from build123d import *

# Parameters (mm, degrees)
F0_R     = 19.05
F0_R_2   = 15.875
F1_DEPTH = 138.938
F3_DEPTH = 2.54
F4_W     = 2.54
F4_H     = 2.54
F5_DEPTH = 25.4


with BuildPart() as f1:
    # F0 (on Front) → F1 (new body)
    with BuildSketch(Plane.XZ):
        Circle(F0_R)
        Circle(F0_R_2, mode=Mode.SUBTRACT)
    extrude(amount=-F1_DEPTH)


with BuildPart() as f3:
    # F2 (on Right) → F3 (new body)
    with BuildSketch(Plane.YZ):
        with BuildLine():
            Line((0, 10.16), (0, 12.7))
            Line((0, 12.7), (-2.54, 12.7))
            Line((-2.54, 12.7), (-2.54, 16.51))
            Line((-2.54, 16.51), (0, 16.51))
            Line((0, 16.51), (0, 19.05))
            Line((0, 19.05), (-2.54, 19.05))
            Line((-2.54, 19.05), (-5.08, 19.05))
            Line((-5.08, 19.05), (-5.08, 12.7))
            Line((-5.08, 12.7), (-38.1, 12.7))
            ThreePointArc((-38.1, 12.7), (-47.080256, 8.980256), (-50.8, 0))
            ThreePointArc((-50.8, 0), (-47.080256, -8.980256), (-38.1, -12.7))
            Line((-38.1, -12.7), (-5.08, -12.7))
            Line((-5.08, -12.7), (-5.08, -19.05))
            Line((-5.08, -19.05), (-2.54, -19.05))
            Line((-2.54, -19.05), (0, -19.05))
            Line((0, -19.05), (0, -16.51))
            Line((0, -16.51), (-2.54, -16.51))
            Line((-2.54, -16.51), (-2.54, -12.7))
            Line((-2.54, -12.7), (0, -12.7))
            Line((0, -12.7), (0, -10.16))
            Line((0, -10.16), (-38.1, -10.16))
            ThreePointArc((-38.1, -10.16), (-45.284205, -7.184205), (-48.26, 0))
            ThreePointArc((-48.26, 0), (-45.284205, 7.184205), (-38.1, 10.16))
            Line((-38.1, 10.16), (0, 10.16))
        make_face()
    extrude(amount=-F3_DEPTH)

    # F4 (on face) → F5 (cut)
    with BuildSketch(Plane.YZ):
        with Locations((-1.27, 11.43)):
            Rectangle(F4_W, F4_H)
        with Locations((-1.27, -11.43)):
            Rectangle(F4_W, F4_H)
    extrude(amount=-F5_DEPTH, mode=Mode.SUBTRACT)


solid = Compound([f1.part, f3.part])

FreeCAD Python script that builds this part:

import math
import FreeCAD as App
import Part
import Sketcher
from FreeCAD import Vector
Q = App.Units.Quantity


def add_polygon(sketch, points):
    """Adds a closed chain of lines whose ends are joined by coincident constraints."""
    first, n = sketch.GeometryCount, len(points)
    for a, b in zip(points, points[1:] + points[:1]):
        sketch.addGeometry(Part.LineSegment(App.Vector(*a, 0), App.Vector(*b, 0)), False)
    for i in range(n):
        sketch.addConstraint(Sketcher.Constraint("Coincident", first + i, 2, first + (i + 1) % n, 1))

doc = App.newDocument("Part")
params = doc.addObject("Spreadsheet::Sheet", "Params")
for row, (alias, value) in enumerate([
    ("sketch1_diameter", "1.5 in"),
    ("sketch1_diameter2", "1.25 in"),
    ("pad1_length", "5.47 in"),
    ("sketch2_radius", "0.5 in"),
    ("sketch2_radius2", "0.4 in"),
    ("sketch2_width", "0.2 in"),
    ("sketch2_width2", "1.3 in"),
    ("sketch2_height", "0.15 in"),
    ("pad2_length", "0.1 in"),
    ("sketch3_width", "0.1 in"),
    ("pocket1_length", "1 in"),
], start=1):
    params.set(f"A{row}", alias)
    params.set(f"B{row}", "=" + value)
    params.setAlias(f"B{row}", alias)

body = doc.addObject("PartDesign::Body", "Body")

sketch1 = body.newObject("Sketcher::SketchObject", "Sketch")
sketch1.AttachmentSupport = (doc.getObject("XZ_Plane"), [""])
sketch1.MapMode = "FlatFace"
sketch1.addGeometry(Part.Circle(Vector(0, 0, 0), Vector(0, 0, 1), 19), False)
sketch1.addGeometry(Part.Circle(Vector(0, 0, 0), Vector(0, 0, 1), 16), False)
sketch1.addConstraint(Sketcher.Constraint("Coincident", 0, 3, -1, 1))
sketch1.addConstraint(Sketcher.Constraint("Coincident", 1, 3, -1, 1))
sketch1.addConstraint(Sketcher.Constraint("Diameter", 0, Q("1.5 in")))
sketch1.addConstraint(Sketcher.Constraint("Diameter", 1, Q("1.25 in")))
sketch1.setExpression("Constraints[2]", "Params.sketch1_diameter")
sketch1.setExpression("Constraints[3]", "Params.sketch1_diameter2")
pad1 = body.newObject("PartDesign::Pad", "Pad")
pad1.Profile = sketch1
pad1.setExpression("Length", "Params.pad1_length")
pad1.Reversed = True
body2 = doc.addObject("PartDesign::Body", "Body001")

sketch2 = body2.newObject("Sketcher::SketchObject", "Sketch001")
sketch2.AttachmentSupport = (doc.getObject("YZ_Plane001"), [""])
sketch2.MapMode = "FlatFace"
sketch2.addGeometry(Part.LineSegment(Vector(0, 10.2, 0), Vector(0, 12.7, 0)), False)
sketch2.addGeometry(Part.LineSegment(Vector(0, 12.7, 0), Vector(-2.5, 12.7, 0)), False)
sketch2.addGeometry(Part.LineSegment(Vector(-2.5, 12.7, 0), Vector(-2.5, 16.5, 0)), False)
sketch2.addGeometry(Part.LineSegment(Vector(-2.5, 16.5, 0), Vector(0, 16.5, 0)), False)
sketch2.addGeometry(Part.LineSegment(Vector(0, 16.5, 0), Vector(0, 19.1, 0)), False)
sketch2.addGeometry(Part.LineSegment(Vector(0, 19.1, 0), Vector(-5.1, 19.1, 0)), False)
sketch2.addGeometry(Part.LineSegment(Vector(-5.1, 19.1, 0), Vector(-5.1, 12.7, 0)), False)
sketch2.addGeometry(Part.LineSegment(Vector(-5.1, 12.7, 0), Vector(-38.1, 12.7, 0)), False)
sketch2.addGeometry(Part.ArcOfCircle(Part.Circle(Vector(-38.1, 0, 0), Vector(0, 0, 1), 12.7), math.radians(90), math.radians(180)), False)
sketch2.addGeometry(Part.ArcOfCircle(Part.Circle(Vector(-38.1, 0, 0), Vector(0, 0, 1), 12.7), math.radians(-180), math.radians(-90)), False)
sketch2.addGeometry(Part.LineSegment(Vector(-38.1, -12.7, 0), Vector(-5.1, -12.7, 0)), False)
sketch2.addGeometry(Part.LineSegment(Vector(-5.1, -12.7, 0), Vector(-5.1, -19.1, 0)), False)
sketch2.addGeometry(Part.LineSegment(Vector(-5.1, -19.1, 0), Vector(0, -19.1, 0)), False)
sketch2.addGeometry(Part.LineSegment(Vector(0, -19.1, 0), Vector(0, -16.5, 0)), False)
sketch2.addGeometry(Part.LineSegment(Vector(0, -16.5, 0), Vector(-2.5, -16.5, 0)), False)
sketch2.addGeometry(Part.LineSegment(Vector(-2.5, -16.5, 0), Vector(-2.5, -12.7, 0)), False)
sketch2.addGeometry(Part.LineSegment(Vector(-2.5, -12.7, 0), Vector(0, -12.7, 0)), False)
sketch2.addGeometry(Part.LineSegment(Vector(0, -12.7, 0), Vector(0, -10.2, 0)), False)
sketch2.addGeometry(Part.LineSegment(Vector(0, -10.2, 0), Vector(-38.1, -10.2, 0)), False)
sketch2.addGeometry(Part.ArcOfCircle(Part.Circle(Vector(-38.1, 0, 0), Vector(0, 0, 1), 10.2), math.radians(180), math.radians(270)), False)
sketch2.addGeometry(Part.ArcOfCircle(Part.Circle(Vector(-38.1, 0, 0), Vector(0, 0, 1), 10.2), math.radians(90), math.radians(180)), False)
sketch2.addGeometry(Part.LineSegment(Vector(-38.1, 10.2, 0), Vector(0, 10.2, 0)), False)
sketch2.addConstraint(Sketcher.Constraint("Coincident", 0, 2, 1, 1))
sketch2.addConstraint(Sketcher.Constraint("Coincident", 1, 2, 2, 1))
sketch2.addConstraint(Sketcher.Constraint("Coincident", 2, 2, 3, 1))
sketch2.addConstraint(Sketcher.Constraint("Coincident", 3, 2, 4, 1))
sketch2.addConstraint(Sketcher.Constraint("Coincident", 4, 2, 5, 1))
sketch2.addConstraint(Sketcher.Constraint("Coincident", 5, 2, 6, 1))
sketch2.addConstraint(Sketcher.Constraint("Coincident", 6, 2, 7, 1))
sketch2.addConstraint(Sketcher.Constraint("Tangent", 7, 2, 8, 1))
sketch2.addConstraint(Sketcher.Constraint("Tangent", 8, 2, 9, 1))
sketch2.addConstraint(Sketcher.Constraint("Tangent", 9, 2, 10, 1))
sketch2.addConstraint(Sketcher.Constraint("Coincident", 10, 2, 11, 1))
sketch2.addConstraint(Sketcher.Constraint("Coincident", 11, 2, 12, 1))
sketch2.addConstraint(Sketcher.Constraint("Coincident", 12, 2, 13, 1))
sketch2.addConstraint(Sketcher.Constraint("Coincident", 13, 2, 14, 1))
sketch2.addConstraint(Sketcher.Constraint("Coincident", 14, 2, 15, 1))
sketch2.addConstraint(Sketcher.Constraint("Coincident", 15, 2, 16, 1))
sketch2.addConstraint(Sketcher.Constraint("Coincident", 16, 2, 17, 1))
sketch2.addConstraint(Sketcher.Constraint("Coincident", 17, 2, 18, 1))
sketch2.addConstraint(Sketcher.Constraint("Tangent", 18, 2, 19, 2))
sketch2.addConstraint(Sketcher.Constraint("Tangent", 19, 1, 20, 2))
sketch2.addConstraint(Sketcher.Constraint("Tangent", 20, 1, 21, 1))
sketch2.addConstraint(Sketcher.Constraint("Coincident", 21, 2, 0, 1))
sketch2.addConstraint(Sketcher.Constraint("Vertical", 0))
sketch2.addConstraint(Sketcher.Constraint("Horizontal", 1))
sketch2.addConstraint(Sketcher.Constraint("Vertical", 2))
sketch2.addConstraint(Sketcher.Constraint("Horizontal", 3))
sketch2.addConstraint(Sketcher.Constraint("Vertical", 4))
sketch2.addConstraint(Sketcher.Constraint("Horizontal", 5))
sketch2.addConstraint(Sketcher.Constraint("Vertical", 6))
sketch2.addConstraint(Sketcher.Constraint("Horizontal", 7))
sketch2.addConstraint(Sketcher.Constraint("Horizontal", 10))
sketch2.addConstraint(Sketcher.Constraint("Vertical", 11))
sketch2.addConstraint(Sketcher.Constraint("Horizontal", 12))
sketch2.addConstraint(Sketcher.Constraint("Vertical", 13))
sketch2.addConstraint(Sketcher.Constraint("Horizontal", 14))
sketch2.addConstraint(Sketcher.Constraint("Vertical", 15))
sketch2.addConstraint(Sketcher.Constraint("Horizontal", 16))
sketch2.addConstraint(Sketcher.Constraint("Vertical", 17))
sketch2.addConstraint(Sketcher.Constraint("Horizontal", 18))
sketch2.addConstraint(Sketcher.Constraint("Horizontal", 21))
sketch2.addConstraint(Sketcher.Constraint("Coincident", 19, 3, 8, 3))
sketch2.addConstraint(Sketcher.Constraint("Equal", 8, 9))
sketch2.addConstraint(Sketcher.Constraint("Equal", 19, 20))
sketch2.addConstraint(Sketcher.Constraint("Symmetric", 4, 2, 12, 2, -1, 1))
sketch2.addConstraint(Sketcher.Constraint("Symmetric", 0, 2, 16, 2, -1, 1))
sketch2.addConstraint(Sketcher.Constraint("Symmetric", 6, 2, 10, 2, -1))
sketch2.addConstraint(Sketcher.Constraint("Symmetric", 3, 2, 13, 2, -1))
sketch2.addConstraint(Sketcher.Constraint("PointOnObject", 0, 2, -2))
sketch2.addConstraint(Sketcher.Constraint("PointOnObject", 8, 2, -1))
sketch2.addConstraint(Sketcher.Constraint("PointOnObject", 19, 1, -1))
sketch2.addConstraint(Sketcher.Constraint("Horizontal", 1, 2, 6, 2))
sketch2.addConstraint(Sketcher.Constraint("Vertical", 2, 2, 14, 2))
sketch2.addConstraint(Sketcher.Constraint("Equal", 16, 0))
sketch2.addConstraint(Sketcher.Constraint("Equal", 0, 4))
sketch2.addConstraint(Sketcher.Constraint("Radius", 8, Q("0.5 in")))
sketch2.addConstraint(Sketcher.Constraint("Radius", 19, Q("0.4 in")))
sketch2.addConstraint(Sketcher.Constraint("DistanceX", 5, 2, 5, 1, Q("0.2 in")))
sketch2.addConstraint(Sketcher.Constraint("DistanceX", 7, 2, 7, 1, Q("1.3 in")))
sketch2.addConstraint(Sketcher.Constraint("DistanceY", 2, 1, 2, 2, Q("0.15 in")))
sketch2.setExpression("Constraints[54]", "Params.sketch2_radius")
sketch2.setExpression("Constraints[55]", "Params.sketch2_radius2")
sketch2.setExpression("Constraints[56]", "Params.sketch2_width")
sketch2.setExpression("Constraints[57]", "Params.sketch2_width2")
sketch2.setExpression("Constraints[58]", "Params.sketch2_height")
pad2 = body2.newObject("PartDesign::Pad", "Pad001")
pad2.Profile = sketch2
pad2.setExpression("Length", "Params.pad2_length")
pad2.Reversed = True

sketch3 = body2.newObject("Sketcher::SketchObject", "Sketch002")
sketch3.AttachmentSupport = (doc.getObject("YZ_Plane001"), [""])
sketch3.MapMode = "FlatFace"
add_polygon(sketch3, [(-2.5, 12.7), (-2.5, 10.2), (0, 10.2), (0, 12.7)])
add_polygon(sketch3, [(-2.5, -10.2), (-2.5, -12.7), (0, -12.7), (0, -10.2)])
sketch3.addConstraint(Sketcher.Constraint("Vertical", 0))
sketch3.addConstraint(Sketcher.Constraint("Horizontal", 1))
sketch3.addConstraint(Sketcher.Constraint("Vertical", 2))
sketch3.addConstraint(Sketcher.Constraint("Horizontal", 3))
sketch3.addConstraint(Sketcher.Constraint("Vertical", 4))
sketch3.addConstraint(Sketcher.Constraint("Horizontal", 5))
sketch3.addConstraint(Sketcher.Constraint("Vertical", 6))
sketch3.addConstraint(Sketcher.Constraint("Horizontal", 7))
sketch3.addConstraint(Sketcher.Constraint("Symmetric", 2, 2, 5, 2, -1, 1))
sketch3.addConstraint(Sketcher.Constraint("Symmetric", 1, 2, 6, 2, -1))
sketch3.addConstraint(Sketcher.Constraint("Vertical", 3, 2, 4, 2))
sketch3.addConstraint(Sketcher.Constraint("Equal", 7, 0))
sketch3.addConstraint(Sketcher.Constraint("DistanceX", 1, 1, 1, 2, Q("0.1 in")))
sketch3.addConstraint(Sketcher.Constraint("DistanceY", 4, 2, 3, 2, Q("1 in")))
sketch3.setExpression("Constraints[20]", "Params.sketch3_width")
pocket1 = body2.newObject("PartDesign::Pocket", "Pocket")
pocket1.Profile = sketch3
pocket1.setExpression("Length", "Params.pocket1_length")

doc.recompute()
